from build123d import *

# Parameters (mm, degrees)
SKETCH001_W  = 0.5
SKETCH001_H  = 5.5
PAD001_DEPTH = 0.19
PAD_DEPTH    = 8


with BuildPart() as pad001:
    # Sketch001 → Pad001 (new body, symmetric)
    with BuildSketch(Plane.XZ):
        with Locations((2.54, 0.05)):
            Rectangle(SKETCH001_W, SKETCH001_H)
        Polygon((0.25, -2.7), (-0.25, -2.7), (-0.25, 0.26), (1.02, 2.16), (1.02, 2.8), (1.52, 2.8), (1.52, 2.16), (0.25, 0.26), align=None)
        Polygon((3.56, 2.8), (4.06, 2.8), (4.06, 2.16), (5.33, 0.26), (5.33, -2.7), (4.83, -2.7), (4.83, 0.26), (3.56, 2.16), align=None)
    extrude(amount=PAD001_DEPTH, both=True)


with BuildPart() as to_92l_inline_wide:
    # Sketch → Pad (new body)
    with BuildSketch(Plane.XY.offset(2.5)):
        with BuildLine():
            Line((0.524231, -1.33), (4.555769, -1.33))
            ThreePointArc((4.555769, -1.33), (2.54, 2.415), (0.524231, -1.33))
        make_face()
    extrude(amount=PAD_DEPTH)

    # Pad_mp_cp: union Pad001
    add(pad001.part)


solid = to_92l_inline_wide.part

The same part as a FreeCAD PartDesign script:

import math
import FreeCAD as App
import Part
import Sketcher
from FreeCAD import Vector
Q = App.Units.Quantity


def add_polygon(sketch, points):
    """Adds a closed chain of lines whose ends are joined by coincident constraints."""
    first, n = sketch.GeometryCount, len(points)
    for a, b in zip(points, points[1:] + points[:1]):
        sketch.addGeometry(Part.LineSegment(App.Vector(*a, 0), App.Vector(*b, 0)), False)
    for i in range(n):
        sketch.addConstraint(Sketcher.Constraint("Coincident", first + i, 2, first + (i + 1) % n, 1))

doc = App.newDocument("Part")
params = doc.addObject("Spreadsheet::Sheet", "Params")
for row, (alias, value) in enumerate([
    ("sketch1_width", "0.5 mm"),
    ("sketch1_height", "5.5 mm"),
    ("sketch1_height2", "2.96 mm"),
    ("sketch1_height3", "0.64 mm"),
    ("pad1_length", "0.38 mm"),
    ("pad2_length", "8 mm"),
], start=1):
    params.set(f"A{row}", alias)
    params.set(f"B{row}", "=" + value)
    params.setAlias(f"B{row}", alias)

body = doc.addObject("PartDesign::Body", "Body")
body.AllowCompound = True

# Sketch on XZ plane
sketch1 = body.newObject("Sketcher::SketchObject", "Sketch")
sketch1.AttachmentSupport = (doc.getObject("XZ_Plane"), [""])
sketch1.MapMode = "FlatFace"
add_polygon(sketch1, [(2.29, 2.8), (2.29, -2.7), (2.79, -2.7), (2.79, 2.8)])  # lines 0-3
add_polygon(sketch1, [(-0.25, -2.7), (0.25, -2.7), (0.25, 0.26), (1.52, 2.16), (1.52, 2.8), (1.02, 2.8), (1.02, 2.16), (-0.25, 0.26)])  # lines 4-11
add_polygon(sketch1, [(4.06, 2.8), (3.56, 2.8), (3.56, 2.16), (4.83, 0.26), (4.83, -2.7), (5.33, -2.7), (5.33, 0.26), (4.06, 2.16)])  # lines 12-19
sketch1.addConstraint([
    Sketcher.Constraint("Vertical", 0),
    Sketcher.Constraint("Horizontal", 1),
    Sketcher.Constraint("Vertical", 2),
    Sketcher.Constraint("Horizontal", 3),
    Sketcher.Constraint("Horizontal", 4),
    Sketcher.Constraint("Vertical", 5),
    Sketcher.Constraint("Vertical", 7),
    Sketcher.Constraint("Horizontal", 8),
    Sketcher.Constraint("Vertical", 9),
    Sketcher.Constraint("Vertical", 11),
    Sketcher.Constraint("Horizontal", 12),
    Sketcher.Constraint("Vertical", 13),
    Sketcher.Constraint("Vertical", 15),
    Sketcher.Constraint("Horizontal", 16),
    Sketcher.Constraint("Vertical", 17),
    Sketcher.Constraint("Vertical", 19),
    Sketcher.Constraint("Symmetric", 5, 2, 10, 2, -2),
    Sketcher.Constraint("Parallel", 6, 10),
    Sketcher.Constraint("Parallel", 14, 18),
    Sketcher.Constraint("Horizontal", 1, 2, 4, 2),
    Sketcher.Constraint("Horizontal", 3, 2, 7, 2),
    Sketcher.Constraint("Horizontal", 6, 2, 9, 2),
    Sketcher.Constraint("Horizontal", 8, 2, 12, 2),
    Sketcher.Constraint("Horizontal", 9, 2, 13, 2),
    Sketcher.Constraint("Horizontal", 10, 2, 14, 2),
    Sketcher.Constraint("Horizontal", 11, 2, 15, 2),
    Sketcher.Constraint("Horizontal", 14, 2, 17, 2),
    Sketcher.Constraint("Horizontal", 13, 2, 18, 2),
    Sketcher.Constraint("Equal", 3, 4),
    Sketcher.Constraint("Equal", 8, 12),
    Sketcher.Constraint("Equal", 10, 14),
    Sketcher.Constraint("DistanceX", 1, 1, 1, 2, Q("0.5 mm")),
    Sketcher.Constraint("DistanceY", 0, 2, 0, 1, Q("5.5 mm")),
    Sketcher.Constraint("DistanceY", 5, 1, 5, 2, Q("2.96 mm")),
    Sketcher.Constraint("DistanceY", 7, 1, 7, 2, Q("0.64 mm")),
    Sketcher.Constraint("DistanceY", 0, 2, -1, 1, Q("2.7 mm")),
    Sketcher.Constraint("DistanceX", -1, 1, 0, 2, Q("2.29 mm")),
    Sketcher.Constraint("DistanceX", -1, 1, 6, 2, Q("1.52 mm")),
    Sketcher.Constraint("DistanceX", -1, 1, 12, 2, Q("3.56 mm")),
])
sketch1.setExpression("Constraints[51]", "Params.sketch1_width")
sketch1.setExpression("Constraints[52]", "Params.sketch1_height")
sketch1.setExpression("Constraints[53]", "Params.sketch1_height2")
sketch1.setExpression("Constraints[54]", "Params.sketch1_height3")
pad1 = body.newObject("PartDesign::Pad", "Pad")
pad1.Profile = sketch1
pad1.setExpression("Length", "Params.pad1_length")
pad1.Midplane = True
body2 = doc.addObject("PartDesign::Body", "Body001")

# Sketch on XY plane
sketch2 = body2.newObject("Sketcher::SketchObject", "Sketch001")
sketch2.AttachmentSupport = (doc.getObject("XY_Plane001"), [""])
sketch2.MapMode = "FlatFace"
sketch2.AttachmentOffset = App.Placement(Vector(0, 0, 2.5), App.Rotation())
sketch2.addGeometry([
    Part.LineSegment(Vector(0.5, -1.3, 0), Vector(4.6, -1.3, 0)),
    Part.ArcOfCircle(Part.Circle(Vector(2.5, 0, 0), Vector(0, 0, 1), 2.4), math.radians(-33), math.radians(213)),
], False)
sketch2.addConstraint([
    Sketcher.Constraint("Coincident", 0, 1, 1, 2),
    Sketcher.Constraint("Coincident", 1, 1, 0, 2),
    Sketcher.Constraint("Horizontal", 0),
    Sketcher.Constraint("PointOnObject", 1, 3, -1),
    Sketcher.Constraint("Radius", 1, Q("2.415 mm")),
    Sketcher.Constraint("DistanceX", -1, 1, 1, 3, Q("2.54 mm")),
    Sketcher.Constraint("DistanceY", 0, 1, -1, 1, Q("1.33 mm")),
])
pad2 = body2.newObject("PartDesign::Pad", "Pad001")
pad2.Profile = sketch2
pad2.setExpression("Length", "Params.pad2_length")
doc.recompute()

boolean = body2.newObject("PartDesign::Boolean", "Boolean")
boolean.Type = "Fuse"
boolean.addObjects([body])

doc.recompute()
